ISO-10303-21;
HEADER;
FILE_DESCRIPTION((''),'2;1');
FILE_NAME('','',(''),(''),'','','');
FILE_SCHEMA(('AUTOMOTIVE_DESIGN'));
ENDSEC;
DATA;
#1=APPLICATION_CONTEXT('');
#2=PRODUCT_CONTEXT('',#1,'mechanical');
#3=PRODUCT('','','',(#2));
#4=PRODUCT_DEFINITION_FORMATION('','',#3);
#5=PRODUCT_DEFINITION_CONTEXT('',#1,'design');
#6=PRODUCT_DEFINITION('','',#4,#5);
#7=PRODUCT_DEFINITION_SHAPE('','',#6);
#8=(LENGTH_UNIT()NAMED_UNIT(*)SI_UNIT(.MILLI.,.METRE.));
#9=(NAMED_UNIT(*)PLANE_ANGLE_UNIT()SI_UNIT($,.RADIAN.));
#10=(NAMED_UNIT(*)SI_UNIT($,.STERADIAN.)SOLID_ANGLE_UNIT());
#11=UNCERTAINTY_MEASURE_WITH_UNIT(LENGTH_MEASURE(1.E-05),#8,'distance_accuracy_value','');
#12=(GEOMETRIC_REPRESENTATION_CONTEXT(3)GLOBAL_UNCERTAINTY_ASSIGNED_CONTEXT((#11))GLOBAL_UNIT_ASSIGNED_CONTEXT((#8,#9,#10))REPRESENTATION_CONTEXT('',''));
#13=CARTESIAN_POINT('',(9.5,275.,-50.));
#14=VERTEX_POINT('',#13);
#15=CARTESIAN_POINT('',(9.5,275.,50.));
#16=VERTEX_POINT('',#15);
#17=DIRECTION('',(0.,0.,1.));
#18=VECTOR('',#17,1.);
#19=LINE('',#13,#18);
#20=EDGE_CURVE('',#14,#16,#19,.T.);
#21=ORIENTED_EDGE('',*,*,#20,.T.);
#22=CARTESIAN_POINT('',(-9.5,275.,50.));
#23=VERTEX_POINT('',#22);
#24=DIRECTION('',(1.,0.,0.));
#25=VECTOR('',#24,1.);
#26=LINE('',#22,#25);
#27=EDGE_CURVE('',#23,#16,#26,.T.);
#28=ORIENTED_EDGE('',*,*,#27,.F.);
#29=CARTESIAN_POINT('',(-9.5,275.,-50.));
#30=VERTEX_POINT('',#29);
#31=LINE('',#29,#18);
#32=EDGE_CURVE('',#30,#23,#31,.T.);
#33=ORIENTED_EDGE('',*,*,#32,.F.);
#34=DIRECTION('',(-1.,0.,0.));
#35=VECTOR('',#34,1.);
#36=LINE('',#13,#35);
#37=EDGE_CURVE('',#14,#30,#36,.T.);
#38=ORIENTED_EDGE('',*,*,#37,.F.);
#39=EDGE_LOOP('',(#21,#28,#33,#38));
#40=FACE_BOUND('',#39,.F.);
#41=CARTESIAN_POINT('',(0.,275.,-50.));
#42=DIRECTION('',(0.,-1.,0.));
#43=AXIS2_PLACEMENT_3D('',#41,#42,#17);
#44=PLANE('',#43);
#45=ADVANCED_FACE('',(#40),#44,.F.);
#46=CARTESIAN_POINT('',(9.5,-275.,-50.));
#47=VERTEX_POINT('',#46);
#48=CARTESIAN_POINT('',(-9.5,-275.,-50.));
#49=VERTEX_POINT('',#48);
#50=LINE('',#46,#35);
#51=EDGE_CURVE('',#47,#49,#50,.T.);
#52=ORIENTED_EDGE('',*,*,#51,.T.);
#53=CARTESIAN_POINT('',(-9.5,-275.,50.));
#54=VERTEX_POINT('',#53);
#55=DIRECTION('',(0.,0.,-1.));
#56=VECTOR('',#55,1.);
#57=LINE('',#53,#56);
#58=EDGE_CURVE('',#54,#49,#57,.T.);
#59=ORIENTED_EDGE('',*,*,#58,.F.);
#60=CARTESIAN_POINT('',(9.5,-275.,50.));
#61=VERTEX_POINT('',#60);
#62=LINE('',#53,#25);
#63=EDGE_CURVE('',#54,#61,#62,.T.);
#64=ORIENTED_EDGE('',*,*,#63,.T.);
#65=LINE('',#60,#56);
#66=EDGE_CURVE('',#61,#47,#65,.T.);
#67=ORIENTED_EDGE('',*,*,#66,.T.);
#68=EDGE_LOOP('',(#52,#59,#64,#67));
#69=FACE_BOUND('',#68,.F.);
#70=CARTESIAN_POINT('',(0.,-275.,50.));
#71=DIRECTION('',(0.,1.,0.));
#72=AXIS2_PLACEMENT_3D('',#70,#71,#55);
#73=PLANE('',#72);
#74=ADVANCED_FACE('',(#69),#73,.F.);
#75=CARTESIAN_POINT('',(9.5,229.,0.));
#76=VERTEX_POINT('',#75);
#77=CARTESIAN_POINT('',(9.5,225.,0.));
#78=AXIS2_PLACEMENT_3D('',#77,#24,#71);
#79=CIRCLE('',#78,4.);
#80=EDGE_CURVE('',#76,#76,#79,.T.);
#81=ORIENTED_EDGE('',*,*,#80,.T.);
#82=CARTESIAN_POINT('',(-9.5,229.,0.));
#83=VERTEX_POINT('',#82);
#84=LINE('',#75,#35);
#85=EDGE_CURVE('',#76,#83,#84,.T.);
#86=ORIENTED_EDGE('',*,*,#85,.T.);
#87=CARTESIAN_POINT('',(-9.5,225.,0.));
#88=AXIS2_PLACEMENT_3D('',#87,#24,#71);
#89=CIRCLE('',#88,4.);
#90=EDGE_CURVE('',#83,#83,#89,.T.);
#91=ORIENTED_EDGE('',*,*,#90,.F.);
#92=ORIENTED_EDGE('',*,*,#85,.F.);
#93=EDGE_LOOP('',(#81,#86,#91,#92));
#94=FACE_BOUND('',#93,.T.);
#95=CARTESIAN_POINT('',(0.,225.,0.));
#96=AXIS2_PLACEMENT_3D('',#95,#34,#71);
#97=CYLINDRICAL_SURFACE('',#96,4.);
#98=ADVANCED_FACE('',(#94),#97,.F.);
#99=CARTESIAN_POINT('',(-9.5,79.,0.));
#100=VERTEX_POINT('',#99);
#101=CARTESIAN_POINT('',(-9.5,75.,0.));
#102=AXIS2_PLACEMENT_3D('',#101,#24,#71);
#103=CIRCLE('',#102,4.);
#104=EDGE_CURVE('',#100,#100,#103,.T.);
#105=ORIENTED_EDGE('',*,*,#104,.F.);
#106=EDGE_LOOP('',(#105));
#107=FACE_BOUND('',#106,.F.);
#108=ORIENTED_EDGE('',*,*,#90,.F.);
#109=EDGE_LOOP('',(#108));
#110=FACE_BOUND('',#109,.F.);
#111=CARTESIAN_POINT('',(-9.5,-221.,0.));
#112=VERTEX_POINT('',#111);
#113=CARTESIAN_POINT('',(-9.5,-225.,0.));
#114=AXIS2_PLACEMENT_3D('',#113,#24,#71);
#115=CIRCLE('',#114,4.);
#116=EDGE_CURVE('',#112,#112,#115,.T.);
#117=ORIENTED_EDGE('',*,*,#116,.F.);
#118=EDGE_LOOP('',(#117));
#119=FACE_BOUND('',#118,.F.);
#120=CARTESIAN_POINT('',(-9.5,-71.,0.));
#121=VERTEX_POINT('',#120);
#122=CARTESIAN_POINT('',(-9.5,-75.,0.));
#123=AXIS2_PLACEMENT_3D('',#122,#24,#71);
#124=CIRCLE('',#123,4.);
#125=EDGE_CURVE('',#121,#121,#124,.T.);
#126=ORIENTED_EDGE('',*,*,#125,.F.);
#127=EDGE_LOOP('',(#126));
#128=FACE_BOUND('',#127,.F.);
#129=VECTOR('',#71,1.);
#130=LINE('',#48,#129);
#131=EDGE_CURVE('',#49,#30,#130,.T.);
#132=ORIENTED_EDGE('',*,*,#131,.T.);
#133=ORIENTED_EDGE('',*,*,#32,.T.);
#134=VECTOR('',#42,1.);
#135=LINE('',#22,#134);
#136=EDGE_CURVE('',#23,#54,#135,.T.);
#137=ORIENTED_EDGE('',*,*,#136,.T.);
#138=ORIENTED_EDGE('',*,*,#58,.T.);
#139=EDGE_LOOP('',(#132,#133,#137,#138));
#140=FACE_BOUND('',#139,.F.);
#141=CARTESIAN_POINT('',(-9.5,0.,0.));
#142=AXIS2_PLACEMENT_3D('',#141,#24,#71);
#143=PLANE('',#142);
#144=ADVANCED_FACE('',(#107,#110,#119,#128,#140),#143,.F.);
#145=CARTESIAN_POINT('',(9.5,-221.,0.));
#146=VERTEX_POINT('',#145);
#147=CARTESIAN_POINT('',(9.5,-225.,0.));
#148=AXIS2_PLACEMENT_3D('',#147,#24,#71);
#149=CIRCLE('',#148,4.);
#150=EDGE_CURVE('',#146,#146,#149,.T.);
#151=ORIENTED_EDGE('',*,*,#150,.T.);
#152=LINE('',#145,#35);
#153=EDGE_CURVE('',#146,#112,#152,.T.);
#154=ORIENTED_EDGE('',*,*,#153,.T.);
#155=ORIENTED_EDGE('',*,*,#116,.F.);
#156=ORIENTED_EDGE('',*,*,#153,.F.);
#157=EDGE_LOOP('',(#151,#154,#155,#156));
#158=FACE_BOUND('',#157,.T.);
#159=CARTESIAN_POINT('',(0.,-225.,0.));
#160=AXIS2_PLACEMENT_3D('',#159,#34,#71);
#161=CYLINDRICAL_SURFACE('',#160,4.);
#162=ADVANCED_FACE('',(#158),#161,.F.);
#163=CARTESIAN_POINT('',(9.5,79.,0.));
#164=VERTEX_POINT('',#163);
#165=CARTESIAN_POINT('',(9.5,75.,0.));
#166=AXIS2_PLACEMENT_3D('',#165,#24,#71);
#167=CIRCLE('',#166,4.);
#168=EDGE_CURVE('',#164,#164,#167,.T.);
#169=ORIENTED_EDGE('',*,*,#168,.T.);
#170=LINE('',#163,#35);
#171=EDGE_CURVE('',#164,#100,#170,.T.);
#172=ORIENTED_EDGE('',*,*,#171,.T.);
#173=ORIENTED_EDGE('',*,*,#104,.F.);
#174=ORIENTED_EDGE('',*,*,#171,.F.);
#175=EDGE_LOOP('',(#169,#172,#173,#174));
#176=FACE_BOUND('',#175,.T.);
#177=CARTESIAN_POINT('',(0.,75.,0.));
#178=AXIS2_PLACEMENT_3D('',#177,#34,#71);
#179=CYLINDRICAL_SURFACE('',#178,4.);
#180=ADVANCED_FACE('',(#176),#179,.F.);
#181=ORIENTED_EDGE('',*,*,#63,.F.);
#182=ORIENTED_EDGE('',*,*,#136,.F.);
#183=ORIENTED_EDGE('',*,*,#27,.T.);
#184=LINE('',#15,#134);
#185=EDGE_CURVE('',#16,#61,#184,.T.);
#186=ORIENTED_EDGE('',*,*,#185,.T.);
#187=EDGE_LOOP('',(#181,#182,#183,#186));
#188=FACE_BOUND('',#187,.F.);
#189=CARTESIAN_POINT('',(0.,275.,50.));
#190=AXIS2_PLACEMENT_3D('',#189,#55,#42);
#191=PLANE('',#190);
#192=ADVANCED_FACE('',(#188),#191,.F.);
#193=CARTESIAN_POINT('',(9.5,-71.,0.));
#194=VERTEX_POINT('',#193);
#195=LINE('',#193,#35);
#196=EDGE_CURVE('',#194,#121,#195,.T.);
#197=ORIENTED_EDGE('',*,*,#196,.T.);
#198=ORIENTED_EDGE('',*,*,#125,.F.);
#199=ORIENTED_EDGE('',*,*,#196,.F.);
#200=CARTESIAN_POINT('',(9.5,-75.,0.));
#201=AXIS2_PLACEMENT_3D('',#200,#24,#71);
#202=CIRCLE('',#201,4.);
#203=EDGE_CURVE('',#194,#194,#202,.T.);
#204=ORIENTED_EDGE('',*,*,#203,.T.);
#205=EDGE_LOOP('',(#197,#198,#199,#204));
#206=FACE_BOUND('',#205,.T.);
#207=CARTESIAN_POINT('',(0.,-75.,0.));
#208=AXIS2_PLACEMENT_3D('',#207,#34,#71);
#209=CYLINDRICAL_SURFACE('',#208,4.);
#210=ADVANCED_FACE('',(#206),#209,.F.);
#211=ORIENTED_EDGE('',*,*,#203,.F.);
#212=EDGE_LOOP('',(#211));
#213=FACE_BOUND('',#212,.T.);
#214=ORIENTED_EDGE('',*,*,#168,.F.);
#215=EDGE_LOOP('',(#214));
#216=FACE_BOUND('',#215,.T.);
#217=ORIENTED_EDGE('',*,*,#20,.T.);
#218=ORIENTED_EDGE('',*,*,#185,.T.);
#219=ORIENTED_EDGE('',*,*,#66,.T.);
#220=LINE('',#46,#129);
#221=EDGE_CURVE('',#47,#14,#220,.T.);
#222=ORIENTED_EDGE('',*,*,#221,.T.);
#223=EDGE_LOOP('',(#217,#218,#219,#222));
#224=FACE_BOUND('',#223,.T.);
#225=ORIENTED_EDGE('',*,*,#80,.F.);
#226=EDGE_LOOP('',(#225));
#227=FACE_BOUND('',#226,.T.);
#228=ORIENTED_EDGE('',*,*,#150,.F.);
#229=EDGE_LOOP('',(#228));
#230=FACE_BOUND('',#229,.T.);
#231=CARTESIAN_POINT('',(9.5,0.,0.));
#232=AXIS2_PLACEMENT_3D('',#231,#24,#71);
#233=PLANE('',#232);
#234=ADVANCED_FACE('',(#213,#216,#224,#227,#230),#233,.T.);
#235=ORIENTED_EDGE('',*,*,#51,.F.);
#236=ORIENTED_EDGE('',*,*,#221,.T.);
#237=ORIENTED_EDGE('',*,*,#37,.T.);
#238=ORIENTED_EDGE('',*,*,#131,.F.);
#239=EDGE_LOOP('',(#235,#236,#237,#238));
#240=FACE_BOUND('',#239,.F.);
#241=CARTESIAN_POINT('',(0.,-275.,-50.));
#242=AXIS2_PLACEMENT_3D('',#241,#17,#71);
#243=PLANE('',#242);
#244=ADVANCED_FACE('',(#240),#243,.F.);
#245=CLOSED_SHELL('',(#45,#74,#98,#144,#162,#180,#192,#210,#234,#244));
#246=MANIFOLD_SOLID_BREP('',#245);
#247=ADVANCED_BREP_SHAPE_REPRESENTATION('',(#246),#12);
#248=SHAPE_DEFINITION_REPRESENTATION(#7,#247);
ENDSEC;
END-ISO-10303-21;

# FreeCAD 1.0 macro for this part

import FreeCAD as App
import Part
import Sketcher
from FreeCAD import Vector
Q = App.Units.Quantity


def add_polygon(sketch, points):
    """Adds a closed chain of lines whose ends are joined by coincident constraints."""
    first, n = sketch.GeometryCount, len(points)
    for a, b in zip(points, points[1:] + points[:1]):
        sketch.addGeometry(Part.LineSegment(App.Vector(*a, 0), App.Vector(*b, 0)), False)
    for i in range(n):
        sketch.addConstraint(Sketcher.Constraint("Coincident", first + i, 2, first + (i + 1) % n, 1))

doc = App.newDocument("Part")
body = doc.addObject("PartDesign::Body", "Body")

# Sketch on YZ plane
sketch1 = doc.addObject("Sketcher::SketchObject", "Sketch")
body.addObject(sketch1)
sketch1.AttachmentSupport = (doc.YZ_Plane, [""])
sketch1.MapMode = "FlatFace"
add_polygon(sketch1, [(275, -50), (275, 50), (-275, 50), (-275, -50)])  # lines 0-3
sketch1.addGeometry(Part.Circle(Vector(-225, 0, 0), Vector(0, 0, 1), 4), False)  # 4
sketch1.addGeometry(Part.Circle(Vector(-75, 0, 0), Vector(0, 0, 1), 4), False)  # 5
sketch1.addGeometry(Part.Circle(Vector(75, 0, 0), Vector(0, 0, 1), 4), False)  # 6
sketch1.addGeometry(Part.Circle(Vector(225, 0, 0), Vector(0, 0, 1), 4), False)  # 7
sketch1.addConstraint(Sketcher.Constraint("Vertical", 0))
sketch1.addConstraint(Sketcher.Constraint("Horizontal", 1))
sketch1.addConstraint(Sketcher.Constraint("Vertical", 2))
sketch1.addConstraint(Sketcher.Constraint("Horizontal", 3))
sketch1.addConstraint(Sketcher.Constraint("Equal", 4, 5))
sketch1.addConstraint(Sketcher.Constraint("Equal", 5, 6))
sketch1.addConstraint(Sketcher.Constraint("Equal", 6, 7))
sketch1.addConstraint(Sketcher.Constraint("Symmetric", 5, 3, 6, 3, -1, 1))
sketch1.addConstraint(Sketcher.Constraint("Symmetric", 4, 3, 7, 3, -1, 1))
sketch1.addConstraint(Sketcher.Constraint("Symmetric", 0, 2, 2, 2, -1, 1))
sketch1.addConstraint(Sketcher.Constraint("PointOnObject", 4, 3, -1))
sketch1.addConstraint(Sketcher.Constraint("PointOnObject", 5, 3, -1))
sketch1.addConstraint(Sketcher.Constraint("Diameter", 4, Q("8 mm")))
sketch1.addConstraint(Sketcher.Constraint("DistanceX", 1, 2, 1, 1, Q("550 mm")))
sketch1.addConstraint(Sketcher.Constraint("DistanceY", 0, 1, 0, 2, Q("100 mm")))
sketch1.addConstraint(Sketcher.Constraint("DistanceX", 4, 3, 5, 3, Q("150 mm")))
sketch1.addConstraint(Sketcher.Constraint("DistanceX", 5, 3, 6, 3, Q("150 mm")))
pad1 = doc.addObject("PartDesign::Pad", "Pad")
body.addObject(pad1)
pad1.Profile = sketch1
pad1.Length = 19
pad1.Midplane = True

doc.recompute()
